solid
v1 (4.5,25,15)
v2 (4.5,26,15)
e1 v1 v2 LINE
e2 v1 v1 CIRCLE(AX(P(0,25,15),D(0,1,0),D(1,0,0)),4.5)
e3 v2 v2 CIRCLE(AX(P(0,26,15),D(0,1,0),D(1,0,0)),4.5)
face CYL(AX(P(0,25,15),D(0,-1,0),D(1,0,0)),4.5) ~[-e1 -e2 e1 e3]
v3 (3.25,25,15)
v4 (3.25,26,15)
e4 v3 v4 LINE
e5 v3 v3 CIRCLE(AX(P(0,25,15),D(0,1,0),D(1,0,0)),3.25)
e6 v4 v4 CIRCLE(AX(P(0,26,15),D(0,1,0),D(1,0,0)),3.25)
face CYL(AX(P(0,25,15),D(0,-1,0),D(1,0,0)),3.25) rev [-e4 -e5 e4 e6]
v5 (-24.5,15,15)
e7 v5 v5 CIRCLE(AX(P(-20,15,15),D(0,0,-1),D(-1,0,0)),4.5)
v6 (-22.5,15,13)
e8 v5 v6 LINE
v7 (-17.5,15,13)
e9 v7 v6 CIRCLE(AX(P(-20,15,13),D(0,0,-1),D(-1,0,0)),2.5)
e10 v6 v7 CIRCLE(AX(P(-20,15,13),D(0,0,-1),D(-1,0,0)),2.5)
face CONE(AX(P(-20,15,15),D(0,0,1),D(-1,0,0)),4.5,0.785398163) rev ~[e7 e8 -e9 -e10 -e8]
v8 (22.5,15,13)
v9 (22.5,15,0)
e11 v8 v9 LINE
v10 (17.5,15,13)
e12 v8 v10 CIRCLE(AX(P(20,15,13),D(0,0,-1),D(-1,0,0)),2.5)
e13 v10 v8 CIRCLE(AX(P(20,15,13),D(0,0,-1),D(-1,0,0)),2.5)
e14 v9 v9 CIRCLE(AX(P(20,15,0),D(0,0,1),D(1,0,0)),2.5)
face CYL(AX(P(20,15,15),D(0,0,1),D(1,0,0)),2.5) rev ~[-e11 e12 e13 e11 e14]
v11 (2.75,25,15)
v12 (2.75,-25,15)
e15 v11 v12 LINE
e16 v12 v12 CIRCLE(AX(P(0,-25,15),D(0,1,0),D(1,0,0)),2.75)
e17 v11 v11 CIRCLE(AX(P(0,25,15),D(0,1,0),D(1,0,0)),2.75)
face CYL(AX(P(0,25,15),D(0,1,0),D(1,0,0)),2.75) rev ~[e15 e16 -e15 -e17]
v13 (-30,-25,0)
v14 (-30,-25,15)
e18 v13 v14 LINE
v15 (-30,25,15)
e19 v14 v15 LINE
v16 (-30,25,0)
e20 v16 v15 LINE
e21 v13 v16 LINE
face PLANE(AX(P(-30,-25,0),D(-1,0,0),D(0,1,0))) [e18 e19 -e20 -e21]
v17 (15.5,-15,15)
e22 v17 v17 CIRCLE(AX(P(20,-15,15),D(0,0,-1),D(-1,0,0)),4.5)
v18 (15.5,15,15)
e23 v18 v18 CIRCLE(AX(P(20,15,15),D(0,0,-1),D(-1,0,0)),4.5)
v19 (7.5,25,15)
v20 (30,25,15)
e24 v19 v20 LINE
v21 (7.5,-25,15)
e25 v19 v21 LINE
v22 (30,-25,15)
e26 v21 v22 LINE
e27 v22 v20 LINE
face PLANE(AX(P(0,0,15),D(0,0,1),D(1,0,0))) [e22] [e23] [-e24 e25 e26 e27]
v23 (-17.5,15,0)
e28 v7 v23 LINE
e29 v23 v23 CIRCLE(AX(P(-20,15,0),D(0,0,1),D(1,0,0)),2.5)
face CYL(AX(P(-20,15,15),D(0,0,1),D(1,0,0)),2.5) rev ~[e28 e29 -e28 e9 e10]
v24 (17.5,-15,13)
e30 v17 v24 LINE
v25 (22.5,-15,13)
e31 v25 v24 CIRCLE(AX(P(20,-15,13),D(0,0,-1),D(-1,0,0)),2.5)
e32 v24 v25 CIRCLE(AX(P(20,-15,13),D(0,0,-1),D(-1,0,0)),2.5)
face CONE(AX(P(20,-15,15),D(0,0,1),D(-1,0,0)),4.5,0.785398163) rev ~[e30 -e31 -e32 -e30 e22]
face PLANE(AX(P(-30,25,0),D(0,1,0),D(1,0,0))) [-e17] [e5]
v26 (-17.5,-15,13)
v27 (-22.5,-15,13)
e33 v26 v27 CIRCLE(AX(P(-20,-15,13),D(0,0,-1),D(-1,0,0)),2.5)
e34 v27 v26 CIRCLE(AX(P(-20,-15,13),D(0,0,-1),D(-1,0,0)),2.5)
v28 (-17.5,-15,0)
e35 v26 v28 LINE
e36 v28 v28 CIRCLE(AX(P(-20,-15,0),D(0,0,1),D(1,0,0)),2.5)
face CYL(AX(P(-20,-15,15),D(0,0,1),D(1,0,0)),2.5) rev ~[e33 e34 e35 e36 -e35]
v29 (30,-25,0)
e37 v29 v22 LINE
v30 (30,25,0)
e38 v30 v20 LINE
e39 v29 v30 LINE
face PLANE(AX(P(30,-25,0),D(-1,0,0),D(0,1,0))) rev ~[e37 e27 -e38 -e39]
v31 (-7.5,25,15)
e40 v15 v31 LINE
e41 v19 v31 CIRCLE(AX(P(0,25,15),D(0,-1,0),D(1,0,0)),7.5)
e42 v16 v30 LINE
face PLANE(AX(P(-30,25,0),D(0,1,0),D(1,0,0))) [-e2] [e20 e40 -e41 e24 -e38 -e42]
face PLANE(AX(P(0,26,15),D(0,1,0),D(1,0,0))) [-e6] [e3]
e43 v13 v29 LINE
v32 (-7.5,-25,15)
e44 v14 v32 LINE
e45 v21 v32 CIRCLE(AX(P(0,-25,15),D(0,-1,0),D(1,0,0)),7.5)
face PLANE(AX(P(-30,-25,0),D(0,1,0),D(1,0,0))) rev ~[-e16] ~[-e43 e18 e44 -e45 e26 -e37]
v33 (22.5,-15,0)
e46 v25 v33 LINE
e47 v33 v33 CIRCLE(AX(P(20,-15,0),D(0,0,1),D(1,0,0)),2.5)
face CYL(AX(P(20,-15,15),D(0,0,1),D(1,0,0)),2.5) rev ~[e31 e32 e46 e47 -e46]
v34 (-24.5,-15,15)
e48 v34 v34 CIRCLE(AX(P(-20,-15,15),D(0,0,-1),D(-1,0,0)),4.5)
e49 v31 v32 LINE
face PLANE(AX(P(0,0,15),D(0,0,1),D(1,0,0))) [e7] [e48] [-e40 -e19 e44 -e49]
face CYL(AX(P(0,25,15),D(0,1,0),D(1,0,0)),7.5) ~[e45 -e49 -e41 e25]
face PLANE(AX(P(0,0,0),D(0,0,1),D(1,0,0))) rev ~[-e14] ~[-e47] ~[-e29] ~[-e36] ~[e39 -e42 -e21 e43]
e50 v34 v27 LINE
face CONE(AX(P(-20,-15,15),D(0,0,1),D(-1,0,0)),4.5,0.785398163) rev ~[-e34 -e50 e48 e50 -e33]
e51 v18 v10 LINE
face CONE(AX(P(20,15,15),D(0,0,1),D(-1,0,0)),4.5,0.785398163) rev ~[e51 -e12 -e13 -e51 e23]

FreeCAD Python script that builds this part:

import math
import FreeCAD as App
import Part
import Sketcher
from FreeCAD import Vector


def add_polygon(sketch, points):
    """Adds a closed chain of lines whose ends are joined by coincident constraints."""
    first, n = sketch.GeometryCount, len(points)
    for a, b in zip(points, points[1:] + points[:1]):
        sketch.addGeometry(Part.LineSegment(App.Vector(*a, 0), App.Vector(*b, 0)), False)
    for i in range(n):
        sketch.addConstraint(Sketcher.Constraint("Coincident", first + i, 2, first + (i + 1) % n, 1))

doc = App.newDocument("Part")
body = doc.addObject("PartDesign::Body", "Body")

sketch1 = doc.addObject("Sketcher::SketchObject", "Sketch")
body.addObject(sketch1)
sketch1.AttachmentSupport = (doc.XY_Plane, [""])
sketch1.MapMode = "FlatFace"
add_polygon(sketch1, [(-30, 25), (-30, -25), (30, -25), (30, 25)])
sketch1.addConstraint(Sketcher.Constraint("Vertical", 0))
sketch1.addConstraint(Sketcher.Constraint("Horizontal", 1))
sketch1.addConstraint(Sketcher.Constraint("Vertical", 2))
sketch1.addConstraint(Sketcher.Constraint("Horizontal", 3))
sketch1.addConstraint(Sketcher.Constraint("Symmetric", 0, 2, 2, 2, -1, 1))
sketch1.addConstraint(Sketcher.Constraint("DistanceX", 1, 1, 1, 2, 60.0))
sketch1.addConstraint(Sketcher.Constraint("DistanceY", 0, 2, 0, 1, 50.0))
pad1 = doc.addObject("PartDesign::Pad", "Pad")
body.addObject(pad1)
pad1.Profile = sketch1
pad1.Length = 15

sketch2 = doc.addObject("Sketcher::SketchObject", "Sketch001")
body.addObject(sketch2)
sketch2.AttachmentSupport = (doc.XZ_Plane, [""])
sketch2.MapMode = "FlatFace"
sketch2.AttachmentOffset = App.Placement(Vector(0, 0, -25), App.Rotation())
sketch2.addGeometry(Part.LineSegment(Vector(8, 15, 0), Vector(-8, 15, 0)), False)
sketch2.addGeometry(Part.ArcOfCircle(Part.Circle(Vector(0, 15, 0), Vector(0, 0, 1), 8), math.radians(0), math.radians(180)), False)
sketch2.addConstraint(Sketcher.Constraint("Coincident", 0, 1, 1, 1))
sketch2.addConstraint(Sketcher.Constraint("Coincident", 1, 2, 0, 2))
sketch2.addConstraint(Sketcher.Constraint("Horizontal", 0))
sketch2.addConstraint(Sketcher.Constraint("PointOnObject", 1, 3, -2))
sketch2.addConstraint(Sketcher.Constraint("Horizontal", 1, 3, 0, 1))
sketch2.addConstraint(Sketcher.Constraint("Radius", 1, 7.5))
sketch2.addConstraint(Sketcher.Constraint("DistanceY", -1, 1, 1, 3, 15.0))
pad2 = doc.addObject("PartDesign::Pad", "Pad001")
body.addObject(pad2)
pad2.Profile = sketch2
pad2.Length = 50

sketch3 = doc.addObject("Sketcher::SketchObject", "Sketch002")
body.addObject(sketch3)
sketch3.AttachmentSupport = (doc.XZ_Plane, [""])
sketch3.MapMode = "FlatFace"
sketch3.AttachmentOffset = App.Placement(Vector(0, 0, -25), App.Rotation())
sketch3.addGeometry(Part.Circle(Vector(0, 15, 0), Vector(0, 0, 1), 4.5), False)
sketch3.addGeometry(Part.Circle(Vector(0, 15, 0), Vector(0, 0, 1), 3.2), False)
sketch3.addConstraint(Sketcher.Constraint("Coincident", 1, 3, 0, 3))
sketch3.addConstraint(Sketcher.Constraint("PointOnObject", 0, 3, -2))
sketch3.addConstraint(Sketcher.Constraint("Diameter", 0, 9.0))
sketch3.addConstraint(Sketcher.Constraint("Diameter", 1, 6.5))
sketch3.addConstraint(Sketcher.Constraint("DistanceY", -1, 1, 0, 3, 15.0))
pad3 = doc.addObject("PartDesign::Pad", "Pad002")
body.addObject(pad3)
pad3.Profile = sketch3
pad3.Length = 1
pad3.Reversed = True

sketch4 = doc.addObject("Sketcher::SketchObject", "Sketch003")
body.addObject(sketch4)
sketch4.AttachmentSupport = (doc.XZ_Plane, [""])
sketch4.MapMode = "FlatFace"
sketch4.AttachmentOffset = App.Placement(Vector(0, 0, -25), App.Rotation())
sketch4.addGeometry(Part.Circle(Vector(0, 15, 0), Vector(0, 0, 1), 2.8), False)
sketch4.addConstraint(Sketcher.Constraint("PointOnObject", 0, 3, -2))
sketch4.addConstraint(Sketcher.Constraint("Diameter", 0, 5.5))
sketch4.addConstraint(Sketcher.Constraint("DistanceY", -1, 1, 0, 3, 15.0))
pocket1 = doc.addObject("PartDesign::Pocket", "Pocket")
body.addObject(pocket1)
pocket1.Profile = sketch4
pocket1.Length = 50
pocket1.Reversed = True

sketch5 = doc.addObject("Sketcher::SketchObject", "Sketch004")
body.addObject(sketch5)
sketch5.AttachmentSupport = (doc.XY_Plane, [""])
sketch5.MapMode = "FlatFace"
sketch5.AttachmentOffset = App.Placement(Vector(0, 0, 15), App.Rotation())
sketch5.addGeometry(Part.Circle(Vector(-20, -15, 0), Vector(0, 0, 1), 2.5), False)
sketch5.addGeometry(Part.Circle(Vector(-20, 15, 0), Vector(0, 0, 1), 2.5), False)
sketch5.addGeometry(Part.Circle(Vector(20, -15, 0), Vector(0, 0, 1), 2.5), False)
sketch5.addGeometry(Part.Circle(Vector(20, 15, 0), Vector(0, 0, 1), 2.5), False)
sketch5.addConstraint(Sketcher.Constraint("Equal", 0, 1))
sketch5.addConstraint(Sketcher.Constraint("Equal", 1, 2))
sketch5.addConstraint(Sketcher.Constraint("Equal", 2, 3))
sketch5.addConstraint(Sketcher.Constraint("Symmetric", 1, 3, 2, 3, -1, 1))
sketch5.addConstraint(Sketcher.Constraint("Symmetric", 0, 3, 3, 3, -1, 1))
sketch5.addConstraint(Sketcher.Constraint("Symmetric", 0, 3, 2, 3, -2))
sketch5.addConstraint(Sketcher.Constraint("Diameter", 0, 5.0))
sketch5.addConstraint(Sketcher.Constraint("DistanceX", 0, 3, -1, 1, 20.0))
sketch5.addConstraint(Sketcher.Constraint("DistanceY", 0, 3, -1, 1, 15.0))
pocket2 = doc.addObject("PartDesign::Pocket", "Pocket001")
body.addObject(pocket2)
pocket2.Profile = sketch5
pocket2.Length = 15

sketch6 = doc.addObject("Sketcher::SketchObject", "Sketch005")
body.addObject(sketch6)
sketch6.AttachmentSupport = (doc.XZ_Plane, [""])
sketch6.MapMode = "FlatFace"
sketch6.AttachmentOffset = App.Placement(Vector(0, 0, 15), App.Rotation())
add_polygon(sketch6, [(-24.5, 15), (-22.5, 13), (-22.5, 15)])
sketch6.addGeometry(Part.LineSegment(Vector(-20, 15, 0), Vector(-20, 13, 0)), True)
sketch6.addConstraint(Sketcher.Constraint("Vertical", 1))
sketch6.addConstraint(Sketcher.Constraint("Horizontal", 2))
sketch6.addConstraint(Sketcher.Constraint("Vertical", 3))
sketch6.addConstraint(Sketcher.Constraint("Horizontal", 2, 2, 3, 1))
sketch6.addConstraint(Sketcher.Constraint("Horizontal", 0, 2, 3, 2))
sketch6.addConstraint(Sketcher.Constraint("Equal", 2, 1))
sketch6.addConstraint(Sketcher.Constraint("DistanceX", 2, 2, 2, 1, 2.0))
sketch6.addConstraint(Sketcher.Constraint("DistanceY", -1, 1, 0, 2, 13.0))
sketch6.addConstraint(Sketcher.Constraint("DistanceX", 3, 1, -1, 1, 20.0))
sketch6.addConstraint(Sketcher.Constraint("DistanceX", 0, 2, -1, 1, 22.5))
groove = doc.addObject("PartDesign::Groove", "Groove")
body.addObject(groove)
groove.Profile = sketch6
groove.ReferenceAxis = (sketch6, ["Axis0"])
groove.Angle = 360
doc.recompute()

linearpattern = doc.addObject("PartDesign::LinearPattern", "LinearPattern")
body.addObject(linearpattern)
linearpattern.Originals = [groove]
linearpattern.Direction = (doc.Y_Axis, [""])
linearpattern.Mode = "offset"
linearpattern.Offset = 30
linearpattern.Occurrences = 2
body.Tip = linearpattern
doc.recompute()

linearpattern2 = doc.addObject("PartDesign::LinearPattern", "LinearPattern001")
body.addObject(linearpattern2)
linearpattern2.Originals = [groove]
linearpattern2.Direction = (doc.X_Axis, [""])
linearpattern2.Mode = "offset"
linearpattern2.Offset = 40
linearpattern2.Occurrences = 2
body.Tip = linearpattern2

sketch7 = doc.addObject("Sketcher::SketchObject", "Sketch006")
body.addObject(sketch7)
sketch7.AttachmentSupport = (doc.XZ_Plane, [""])
sketch7.MapMode = "FlatFace"
sketch7.AttachmentOffset = App.Placement(Vector(0, 0, -15), App.Rotation())
add_polygon(sketch7, [(15.5, 15), (17.5, 13), (17.5, 15)])
sketch7.addGeometry(Part.LineSegment(Vector(20, 15, 0), Vector(20, 13, 0)), True)
sketch7.addConstraint(Sketcher.Constraint("Vertical", 1))
sketch7.addConstraint(Sketcher.Constraint("Horizontal", 2))
sketch7.addConstraint(Sketcher.Constraint("Vertical", 3))
sketch7.addConstraint(Sketcher.Constraint("Horizontal", 2, 2, 3, 1))
sketch7.addConstraint(Sketcher.Constraint("Horizontal", 0, 2, 3, 2))
sketch7.addConstraint(Sketcher.Constraint("Equal", 2, 1))
sketch7.addConstraint(Sketcher.Constraint("DistanceX", 2, 2, 2, 1, 2.0))
sketch7.addConstraint(Sketcher.Constraint("DistanceY", -1, 1, 0, 2, 13.0))
sketch7.addConstraint(Sketcher.Constraint("DistanceX", -1, 1, 3, 1, 20.0))
sketch7.addConstraint(Sketcher.Constraint("DistanceX", -1, 1, 0, 2, 17.5))
groove2 = doc.addObject("PartDesign::Groove", "Groove001")
body.addObject(groove2)
groove2.Profile = sketch7
groove2.ReferenceAxis = (sketch7, ["Axis0"])
groove2.Angle = 360

doc.recompute()
